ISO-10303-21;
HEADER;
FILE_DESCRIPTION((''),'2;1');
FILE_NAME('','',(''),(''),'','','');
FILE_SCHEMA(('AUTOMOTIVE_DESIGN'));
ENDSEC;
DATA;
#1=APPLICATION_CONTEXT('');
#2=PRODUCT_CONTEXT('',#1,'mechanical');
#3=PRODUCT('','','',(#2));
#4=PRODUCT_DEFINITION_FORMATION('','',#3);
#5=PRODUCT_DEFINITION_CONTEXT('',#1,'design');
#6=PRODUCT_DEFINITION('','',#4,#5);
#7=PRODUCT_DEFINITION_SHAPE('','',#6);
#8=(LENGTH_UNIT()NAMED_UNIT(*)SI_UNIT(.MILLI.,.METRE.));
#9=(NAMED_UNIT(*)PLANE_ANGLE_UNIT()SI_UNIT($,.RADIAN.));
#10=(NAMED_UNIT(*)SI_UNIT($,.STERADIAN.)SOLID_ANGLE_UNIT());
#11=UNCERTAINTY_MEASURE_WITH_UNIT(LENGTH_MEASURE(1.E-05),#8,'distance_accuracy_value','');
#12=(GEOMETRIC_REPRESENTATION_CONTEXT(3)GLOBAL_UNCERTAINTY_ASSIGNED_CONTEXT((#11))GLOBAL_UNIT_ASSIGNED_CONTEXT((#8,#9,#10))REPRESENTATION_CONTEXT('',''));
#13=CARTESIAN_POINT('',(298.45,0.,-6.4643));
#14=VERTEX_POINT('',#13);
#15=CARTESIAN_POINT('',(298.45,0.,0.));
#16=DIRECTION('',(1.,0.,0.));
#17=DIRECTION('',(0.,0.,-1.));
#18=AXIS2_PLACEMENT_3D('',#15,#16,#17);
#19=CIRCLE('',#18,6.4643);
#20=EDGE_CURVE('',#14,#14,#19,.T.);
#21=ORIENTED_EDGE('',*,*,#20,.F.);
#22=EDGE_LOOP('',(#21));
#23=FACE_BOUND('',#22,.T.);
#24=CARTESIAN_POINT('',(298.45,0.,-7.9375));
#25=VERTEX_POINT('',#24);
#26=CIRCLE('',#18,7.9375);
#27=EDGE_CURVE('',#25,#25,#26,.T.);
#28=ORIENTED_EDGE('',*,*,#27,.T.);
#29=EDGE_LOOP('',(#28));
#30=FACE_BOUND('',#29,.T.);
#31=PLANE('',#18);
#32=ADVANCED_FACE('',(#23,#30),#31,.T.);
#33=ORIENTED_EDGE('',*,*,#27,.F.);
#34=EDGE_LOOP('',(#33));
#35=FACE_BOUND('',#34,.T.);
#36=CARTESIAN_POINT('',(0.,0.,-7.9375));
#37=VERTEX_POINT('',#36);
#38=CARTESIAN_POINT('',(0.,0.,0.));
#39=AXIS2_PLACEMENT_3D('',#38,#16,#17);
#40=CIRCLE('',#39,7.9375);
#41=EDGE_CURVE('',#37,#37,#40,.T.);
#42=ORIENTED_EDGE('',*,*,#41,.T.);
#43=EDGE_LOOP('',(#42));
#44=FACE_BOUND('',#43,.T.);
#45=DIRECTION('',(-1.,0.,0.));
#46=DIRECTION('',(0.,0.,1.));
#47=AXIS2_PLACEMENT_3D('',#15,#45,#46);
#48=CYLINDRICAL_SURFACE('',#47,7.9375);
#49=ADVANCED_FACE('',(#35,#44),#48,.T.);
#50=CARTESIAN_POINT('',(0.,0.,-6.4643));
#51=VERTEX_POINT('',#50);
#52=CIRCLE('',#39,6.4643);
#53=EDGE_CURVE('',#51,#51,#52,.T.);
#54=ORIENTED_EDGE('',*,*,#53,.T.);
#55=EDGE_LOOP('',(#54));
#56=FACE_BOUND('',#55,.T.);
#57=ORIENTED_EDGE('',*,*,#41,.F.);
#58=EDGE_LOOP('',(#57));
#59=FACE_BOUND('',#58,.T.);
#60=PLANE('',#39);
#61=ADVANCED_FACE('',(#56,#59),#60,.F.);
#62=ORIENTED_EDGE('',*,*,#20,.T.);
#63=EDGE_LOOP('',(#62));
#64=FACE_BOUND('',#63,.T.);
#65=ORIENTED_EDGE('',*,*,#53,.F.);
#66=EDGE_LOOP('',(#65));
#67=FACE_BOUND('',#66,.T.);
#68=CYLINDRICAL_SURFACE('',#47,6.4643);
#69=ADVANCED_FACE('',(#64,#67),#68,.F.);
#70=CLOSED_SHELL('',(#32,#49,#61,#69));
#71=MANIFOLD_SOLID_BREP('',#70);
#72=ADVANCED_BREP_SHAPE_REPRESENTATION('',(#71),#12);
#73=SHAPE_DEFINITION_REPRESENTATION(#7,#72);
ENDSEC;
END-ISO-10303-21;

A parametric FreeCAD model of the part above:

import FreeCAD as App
import Part
import Sketcher

V = App.Vector
Q = App.Units.Quantity

doc = App.newDocument("Part")
body = doc.addObject("PartDesign::Body", "Body")

sketch1 = body.newObject("Sketcher::SketchObject", "Sketch")
sketch1.AttachmentSupport = (doc.getObject("YZ_Plane"), [""])
sketch1.MapMode = "FlatFace"
sketch1.addGeometry(Part.Circle(V(0, 0, 0), V(0, 0, 1), 8), False)
sketch1.addGeometry(Part.Circle(V(0, 0, 0), V(0, 0, 1), 6), False)
sketch1.addConstraint(Sketcher.Constraint("Coincident", 0, 3, -1, 1))
sketch1.addConstraint(Sketcher.Constraint("Coincident", 1, 3, -1, 1))
sketch1.addConstraint(Sketcher.Constraint("Diameter", 0, Q("0.625 in")))
sketch1.addConstraint(Sketcher.Constraint("Diameter", 1, Q("0.509 in")))
pad1 = body.newObject("PartDesign::Pad", "Pad")
pad1.Profile = sketch1
pad1.Length = Q("11.75 in")

doc.recompute()
